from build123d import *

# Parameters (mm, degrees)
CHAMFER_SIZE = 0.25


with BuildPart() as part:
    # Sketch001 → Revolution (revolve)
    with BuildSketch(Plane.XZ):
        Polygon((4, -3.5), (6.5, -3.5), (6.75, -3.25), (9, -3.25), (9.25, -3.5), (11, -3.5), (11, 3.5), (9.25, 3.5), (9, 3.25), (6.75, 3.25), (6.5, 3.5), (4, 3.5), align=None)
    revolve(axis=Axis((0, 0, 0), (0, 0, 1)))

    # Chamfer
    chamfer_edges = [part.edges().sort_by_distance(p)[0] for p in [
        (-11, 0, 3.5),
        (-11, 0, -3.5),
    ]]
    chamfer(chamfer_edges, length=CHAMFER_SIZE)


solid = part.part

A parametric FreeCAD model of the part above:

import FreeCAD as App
import Part
import Sketcher

V = App.Vector


def edges_at(feature, points):
    """Names of the edges that pass closest to the given points."""
    edges = feature.Shape.Edges
    near = lambda p: min(range(len(edges)), key=lambda i: edges[i].distToShape(Part.Vertex(*p))[0])
    return sorted({f"Edge{near(p) + 1}" for p in points})


def add_polygon(sketch, points):
    """Adds a closed chain of lines whose ends are joined by coincident constraints."""
    first, n = sketch.GeometryCount, len(points)
    for a, b in zip(points, points[1:] + points[:1]):
        sketch.addGeometry(Part.LineSegment(App.Vector(*a, 0), App.Vector(*b, 0)), False)
    for i in range(n):
        sketch.addConstraint(Sketcher.Constraint("Coincident", first + i, 2, first + (i + 1) % n, 1))

doc = App.newDocument("Part")
params = doc.addObject("Spreadsheet::Sheet", "Params")
for row, (alias, value) in enumerate([
    ("sketch1_height", "7 mm"),
    ("sketch1_width", "2.5 mm"),
    ("sketch1_width2", "2.25 mm"),
    ("revolution_angle", "360 deg"),
    ("chamfer_size", "0.25 mm"),
], start=1):
    params.set(f"A{row}", alias)
    params.set(f"B{row}", "=" + value)
    params.setAlias(f"B{row}", alias)

body = doc.addObject("PartDesign::Body", "Body")

# Sketch on XZ plane
sketch1 = body.newObject("Sketcher::SketchObject", "Sketch")
sketch1.AttachmentSupport = (doc.getObject("XZ_Plane"), [""])
sketch1.MapMode = "FlatFace"
add_polygon(sketch1, [(4, -3.5), (6.5, -3.5), (6.75, -3.25), (9, -3.25), (9.25, -3.5), (11, -3.5), (11, 3.5), (9.25, 3.5), (9, 3.25), (6.75, 3.25), (6.5, 3.5), (4, 3.5)])  # lines 0-11
sketch1.addConstraint(Sketcher.Constraint("Horizontal", 0))
sketch1.addConstraint(Sketcher.Constraint("Horizontal", 2))
sketch1.addConstraint(Sketcher.Constraint("Horizontal", 4))
sketch1.addConstraint(Sketcher.Constraint("Vertical", 5))
sketch1.addConstraint(Sketcher.Constraint("Horizontal", 6))
sketch1.addConstraint(Sketcher.Constraint("Horizontal", 8))
sketch1.addConstraint(Sketcher.Constraint("Horizontal", 10))
sketch1.addConstraint(Sketcher.Constraint("Vertical", 11))
sketch1.addConstraint(Sketcher.Constraint("Symmetric", 3, 2, 6, 2, -1))
sketch1.addConstraint(Sketcher.Constraint("Symmetric", 2, 2, 7, 2, -1))
sketch1.addConstraint(Sketcher.Constraint("Symmetric", 0, 2, 9, 2, -1))
sketch1.addConstraint(Sketcher.Constraint("Perpendicular", 1, 3))
sketch1.addConstraint(Sketcher.Constraint("Perpendicular", 3, 7))
sketch1.addConstraint(Sketcher.Constraint("Perpendicular", 7, 9))
sketch1.addConstraint(Sketcher.Constraint("Horizontal", 0, 2, 3, 2))
sketch1.addConstraint(Sketcher.Constraint("DistanceY", 5, 1, 5, 2, 7.0))
sketch1.addConstraint(Sketcher.Constraint("DistanceX", 0, 1, 0, 2, 2.5))
sketch1.addConstraint(Sketcher.Constraint("DistanceX", -1, 1, 2, 2, 9.0))
sketch1.addConstraint(Sketcher.Constraint("DistanceX", -1, 1, 4, 2, 11.0))
sketch1.addConstraint(Sketcher.Constraint("DistanceX", -1, 1, 10, 2, 4.0))
sketch1.addConstraint(Sketcher.Constraint("DistanceX", 2, 1, 2, 2, 2.25))
sketch1.setExpression("Constraints[27]", "Params.sketch1_height")
sketch1.setExpression("Constraints[28]", "Params.sketch1_width")
sketch1.setExpression("Constraints[32]", "Params.sketch1_width2")
revolution = body.newObject("PartDesign::Revolution", "Revolution")
revolution.Profile = sketch1
revolution.ReferenceAxis = (sketch1, ["V_Axis"])
revolution.setExpression("Angle", "Params.revolution_angle")
doc.recompute()

chamfer = body.newObject("PartDesign::Chamfer", "Chamfer")
chamfer.Base = (revolution, edges_at(revolution, [(-11, 0, 3.5), (-11, 0, -3.5)]))
chamfer.setExpression("Size", "Params.chamfer_size")

doc.recompute()
